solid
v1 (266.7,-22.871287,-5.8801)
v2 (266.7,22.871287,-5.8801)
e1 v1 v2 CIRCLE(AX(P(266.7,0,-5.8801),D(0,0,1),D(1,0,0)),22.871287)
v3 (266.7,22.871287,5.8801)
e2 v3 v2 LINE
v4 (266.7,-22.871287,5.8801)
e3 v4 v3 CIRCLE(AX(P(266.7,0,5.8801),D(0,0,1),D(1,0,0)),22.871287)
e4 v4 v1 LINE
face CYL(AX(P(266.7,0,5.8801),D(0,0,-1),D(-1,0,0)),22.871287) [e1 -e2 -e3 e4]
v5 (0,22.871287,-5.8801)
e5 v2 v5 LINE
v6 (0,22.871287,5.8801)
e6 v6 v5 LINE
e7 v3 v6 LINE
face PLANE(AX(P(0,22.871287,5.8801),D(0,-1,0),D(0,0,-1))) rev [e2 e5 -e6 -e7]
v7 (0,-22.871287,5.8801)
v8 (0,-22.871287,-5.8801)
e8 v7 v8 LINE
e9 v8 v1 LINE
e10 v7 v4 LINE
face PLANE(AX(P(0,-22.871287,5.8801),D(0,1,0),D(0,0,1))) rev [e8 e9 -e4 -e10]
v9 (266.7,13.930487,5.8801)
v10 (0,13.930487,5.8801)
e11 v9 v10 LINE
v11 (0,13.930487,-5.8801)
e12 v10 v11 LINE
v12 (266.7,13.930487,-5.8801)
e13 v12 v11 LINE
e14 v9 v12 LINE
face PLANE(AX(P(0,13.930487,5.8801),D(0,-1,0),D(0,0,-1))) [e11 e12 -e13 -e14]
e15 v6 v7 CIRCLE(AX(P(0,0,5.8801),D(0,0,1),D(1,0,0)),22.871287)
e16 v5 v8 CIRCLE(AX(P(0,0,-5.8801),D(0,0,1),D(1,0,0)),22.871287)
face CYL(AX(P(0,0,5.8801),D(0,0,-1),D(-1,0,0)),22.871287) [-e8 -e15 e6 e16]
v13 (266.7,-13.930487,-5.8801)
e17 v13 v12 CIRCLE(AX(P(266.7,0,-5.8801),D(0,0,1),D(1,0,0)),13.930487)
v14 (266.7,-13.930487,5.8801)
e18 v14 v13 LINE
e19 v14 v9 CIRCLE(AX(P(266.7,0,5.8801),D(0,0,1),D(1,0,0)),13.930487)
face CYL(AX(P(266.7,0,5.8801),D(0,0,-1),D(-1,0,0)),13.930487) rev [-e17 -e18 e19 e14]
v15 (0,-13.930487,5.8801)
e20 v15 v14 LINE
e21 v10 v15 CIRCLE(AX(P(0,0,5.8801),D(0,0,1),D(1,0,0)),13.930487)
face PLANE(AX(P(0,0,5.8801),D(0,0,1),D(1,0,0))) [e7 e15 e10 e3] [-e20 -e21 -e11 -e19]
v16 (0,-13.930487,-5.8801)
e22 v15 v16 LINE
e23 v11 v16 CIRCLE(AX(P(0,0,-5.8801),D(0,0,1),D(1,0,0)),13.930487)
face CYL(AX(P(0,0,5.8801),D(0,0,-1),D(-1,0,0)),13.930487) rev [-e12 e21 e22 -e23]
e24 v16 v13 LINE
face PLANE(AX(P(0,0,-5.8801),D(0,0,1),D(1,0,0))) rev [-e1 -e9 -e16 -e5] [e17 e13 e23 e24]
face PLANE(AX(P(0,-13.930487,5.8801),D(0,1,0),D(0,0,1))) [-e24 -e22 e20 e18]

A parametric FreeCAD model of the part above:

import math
import FreeCAD as App
import Part
import Sketcher
Q = App.Units.Quantity

doc = App.newDocument("Part")
body = doc.addObject("PartDesign::Body", "Body")

sketch1 = body.newObject("Sketcher::SketchObject", "Sketch")
sketch1.AttachmentSupport = (doc.getObject("XY_Plane"), [""])
sketch1.MapMode = "FlatFace"
sketch1.addGeometry([
    Part.LineSegment(App.Vector(0, -22.871287, 0), App.Vector(266.7, -22.871287, 0)),
    Part.ArcOfCircle(Part.Circle(App.Vector(266.7, 0, 0), App.Vector(0, 0, 1), 22.871287), math.radians(-90), math.radians(90)),
    Part.LineSegment(App.Vector(266.7, 22.871287, 0), App.Vector(0, 22.871287, 0)),
    Part.ArcOfCircle(Part.Circle(App.Vector(0, 0, 0), App.Vector(0, 0, 1), 22.871287), math.radians(90), math.radians(270)),
    Part.LineSegment(App.Vector(266.7, -13.930487, 0), App.Vector(0, -13.930487, 0)),
    Part.ArcOfCircle(Part.Circle(App.Vector(0, 0, 0), App.Vector(0, 0, 1), 13.930487), math.radians(90), math.radians(270)),
    Part.LineSegment(App.Vector(0, 13.930487, 0), App.Vector(266.7, 13.930487, 0)),
    Part.ArcOfCircle(Part.Circle(App.Vector(266.7, 0, 0), App.Vector(0, 0, 1), 13.930487), math.radians(-90), math.radians(90)),
], False)
sketch1.addConstraint([
    Sketcher.Constraint("Tangent", 0, 2, 1, 1),
    Sketcher.Constraint("Tangent", 1, 2, 2, 1),
    Sketcher.Constraint("Tangent", 2, 2, 3, 1),
    Sketcher.Constraint("Tangent", 3, 2, 0, 1),
    Sketcher.Constraint("Tangent", 4, 2, 5, 2),
    Sketcher.Constraint("Tangent", 5, 1, 6, 1),
    Sketcher.Constraint("Tangent", 6, 2, 7, 2),
    Sketcher.Constraint("Tangent", 7, 1, 4, 1),
    Sketcher.Constraint("Horizontal", 0),
    Sketcher.Constraint("Horizontal", 2),
    Sketcher.Constraint("Horizontal", 4),
    Sketcher.Constraint("Horizontal", 6),
    Sketcher.Constraint("Coincident", 3, 3, -1, 1),
    Sketcher.Constraint("Coincident", 5, 3, -1, 1),
    Sketcher.Constraint("Vertical", 7, 3, 0, 2),
    Sketcher.Constraint("DistanceX", 0, 1, 0, 2, Q("10.5 in")),
    Sketcher.Constraint("DistanceY", 3, 2, 4, 2, Q("0.352 in")),
    Sketcher.Constraint("Radius", 1, 22.871287),
])
pad1 = body.newObject("PartDesign::Pad", "Pad")
pad1.Profile = sketch1
pad1.Length = Q("0.463 in")
pad1.Midplane = True

doc.recompute()
